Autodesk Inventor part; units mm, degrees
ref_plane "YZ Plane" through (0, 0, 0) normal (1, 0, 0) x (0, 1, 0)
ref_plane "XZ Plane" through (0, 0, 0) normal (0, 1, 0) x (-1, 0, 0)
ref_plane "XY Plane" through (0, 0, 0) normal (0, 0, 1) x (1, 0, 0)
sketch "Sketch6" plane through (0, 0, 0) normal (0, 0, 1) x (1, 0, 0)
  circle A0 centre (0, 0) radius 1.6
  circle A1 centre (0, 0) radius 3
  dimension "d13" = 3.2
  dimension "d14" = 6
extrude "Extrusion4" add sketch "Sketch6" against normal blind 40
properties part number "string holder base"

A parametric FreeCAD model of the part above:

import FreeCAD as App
import Part
import Sketcher
from FreeCAD import Vector

doc = App.newDocument("Part")
params = doc.addObject("Spreadsheet::Sheet", "Params")
for row, (alias, value) in enumerate([
    ("sketch1_diameter", "6 mm"),
    ("sketch1_diameter2", "3.2 mm"),
    ("pad1_length", "40 mm"),
], start=1):
    params.set(f"A{row}", alias)
    params.set(f"B{row}", "=" + value)
    params.setAlias(f"B{row}", alias)

body = doc.addObject("PartDesign::Body", "Body")

# Sketch on XY plane
sketch1 = body.newObject("Sketcher::SketchObject", "Sketch")
sketch1.AttachmentSupport = (doc.getObject("XY_Plane"), [""])
sketch1.MapMode = "FlatFace"
sketch1.addGeometry(Part.Circle(Vector(0, 0, 0), Vector(0, 0, 1), 3), False)
sketch1.addGeometry(Part.Circle(Vector(0, 0, 0), Vector(0, 0, 1), 1.6), False)
sketch1.addConstraint(Sketcher.Constraint("Coincident", 0, 3, -1, 1))
sketch1.addConstraint(Sketcher.Constraint("Coincident", 1, 3, -1, 1))
sketch1.addConstraint(Sketcher.Constraint("Diameter", 0, 6.0))
sketch1.addConstraint(Sketcher.Constraint("Diameter", 1, 3.2))
sketch1.setExpression("Constraints[2]", "Params.sketch1_diameter")
sketch1.setExpression("Constraints[3]", "Params.sketch1_diameter2")
pad1 = body.newObject("PartDesign::Pad", "Pad")
pad1.Profile = sketch1
pad1.setExpression("Length", "Params.pad1_length")
pad1.Reversed = True

doc.recompute()
